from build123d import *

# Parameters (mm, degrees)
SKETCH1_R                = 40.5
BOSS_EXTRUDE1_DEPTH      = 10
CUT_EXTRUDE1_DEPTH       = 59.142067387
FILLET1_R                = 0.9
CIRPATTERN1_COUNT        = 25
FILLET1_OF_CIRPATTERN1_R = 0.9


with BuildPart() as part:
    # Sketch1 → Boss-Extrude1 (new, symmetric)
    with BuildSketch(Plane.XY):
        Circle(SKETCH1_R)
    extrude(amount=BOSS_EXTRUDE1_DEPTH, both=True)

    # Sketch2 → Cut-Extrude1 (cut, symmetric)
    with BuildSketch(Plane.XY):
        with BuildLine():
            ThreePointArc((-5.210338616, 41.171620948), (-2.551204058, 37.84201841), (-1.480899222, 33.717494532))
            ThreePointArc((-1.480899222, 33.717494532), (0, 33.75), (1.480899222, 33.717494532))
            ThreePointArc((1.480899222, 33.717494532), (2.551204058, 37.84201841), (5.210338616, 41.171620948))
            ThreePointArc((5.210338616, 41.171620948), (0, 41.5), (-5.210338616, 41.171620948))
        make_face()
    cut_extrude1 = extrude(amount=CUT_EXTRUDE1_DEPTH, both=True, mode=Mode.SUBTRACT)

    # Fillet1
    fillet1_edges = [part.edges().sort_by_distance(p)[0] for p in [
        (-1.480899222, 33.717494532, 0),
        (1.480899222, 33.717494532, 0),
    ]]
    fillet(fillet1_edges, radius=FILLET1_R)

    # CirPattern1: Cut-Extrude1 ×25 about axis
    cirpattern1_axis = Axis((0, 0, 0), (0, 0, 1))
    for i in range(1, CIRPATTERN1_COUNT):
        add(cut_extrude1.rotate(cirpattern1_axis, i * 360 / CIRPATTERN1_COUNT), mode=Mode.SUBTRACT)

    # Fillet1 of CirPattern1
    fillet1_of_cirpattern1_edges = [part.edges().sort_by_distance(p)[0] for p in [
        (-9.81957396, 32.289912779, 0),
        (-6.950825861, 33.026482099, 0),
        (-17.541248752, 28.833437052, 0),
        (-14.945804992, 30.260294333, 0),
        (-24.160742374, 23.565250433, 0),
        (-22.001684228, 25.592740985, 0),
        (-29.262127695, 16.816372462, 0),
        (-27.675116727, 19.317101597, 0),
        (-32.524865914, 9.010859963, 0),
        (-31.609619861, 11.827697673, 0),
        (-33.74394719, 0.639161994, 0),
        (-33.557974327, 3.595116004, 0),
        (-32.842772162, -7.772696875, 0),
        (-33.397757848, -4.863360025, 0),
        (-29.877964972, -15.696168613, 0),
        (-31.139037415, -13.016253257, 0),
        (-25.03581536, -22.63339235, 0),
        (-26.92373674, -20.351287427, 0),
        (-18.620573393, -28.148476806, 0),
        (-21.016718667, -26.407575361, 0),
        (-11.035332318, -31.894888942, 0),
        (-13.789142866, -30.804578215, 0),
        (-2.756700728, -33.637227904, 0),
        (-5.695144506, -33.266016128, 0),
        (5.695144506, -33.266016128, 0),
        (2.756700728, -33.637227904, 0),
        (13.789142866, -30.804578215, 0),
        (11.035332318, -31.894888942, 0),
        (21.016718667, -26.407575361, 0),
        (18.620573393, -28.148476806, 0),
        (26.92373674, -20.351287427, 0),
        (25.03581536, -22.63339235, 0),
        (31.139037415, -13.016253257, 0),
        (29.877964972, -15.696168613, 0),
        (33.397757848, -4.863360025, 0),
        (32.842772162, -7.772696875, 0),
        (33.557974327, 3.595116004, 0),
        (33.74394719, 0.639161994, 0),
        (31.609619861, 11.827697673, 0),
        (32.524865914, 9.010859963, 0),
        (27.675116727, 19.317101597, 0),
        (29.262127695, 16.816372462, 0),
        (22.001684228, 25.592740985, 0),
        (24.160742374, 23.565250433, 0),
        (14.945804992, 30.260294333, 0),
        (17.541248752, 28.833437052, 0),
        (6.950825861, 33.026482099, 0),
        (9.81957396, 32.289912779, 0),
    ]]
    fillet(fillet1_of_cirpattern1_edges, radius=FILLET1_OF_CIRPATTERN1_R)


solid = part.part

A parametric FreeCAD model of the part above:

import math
import FreeCAD as App
import Part
import Sketcher

V = App.Vector


def edges_at(feature, points):
    """Names of the edges that pass closest to the given points."""
    edges = feature.Shape.Edges
    near = lambda p: min(range(len(edges)), key=lambda i: edges[i].distToShape(Part.Vertex(*p))[0])
    return sorted({f"Edge{near(p) + 1}" for p in points})

doc = App.newDocument("Part")
params = doc.addObject("Spreadsheet::Sheet", "Params")
for row, (alias, value) in enumerate([
    ("sketch1_diameter", "81 mm"),
    ("pad1_length", "20 mm"),
    ("sketch2_radius", "41.5 mm"),
    ("sketch2_radius2", "33.75 mm"),
    ("pocket1_length", "118.284135 mm"),
    ("fillet_radius", "0.9 mm"),
    ("fillet2_radius", "0.9 mm"),
], start=1):
    params.set(f"A{row}", alias)
    params.set(f"B{row}", "=" + value)
    params.setAlias(f"B{row}", alias)

body = doc.addObject("PartDesign::Body", "Body")

# Sketch on XY plane
sketch1 = doc.addObject("Sketcher::SketchObject", "Sketch")
body.addObject(sketch1)
sketch1.AttachmentSupport = (doc.XY_Plane, [""])
sketch1.MapMode = "FlatFace"
sketch1.addGeometry(Part.Circle(V(0, 0, 0), V(0, 0, 1), 40.5), False)
sketch1.addConstraint(Sketcher.Constraint("Coincident", 0, 3, -1, 1))
sketch1.addConstraint(Sketcher.Constraint("Diameter", 0, 81.0))
sketch1.setExpression("Constraints[1]", "Params.sketch1_diameter")
pad1 = doc.addObject("PartDesign::Pad", "Pad")
body.addObject(pad1)
pad1.Profile = sketch1
pad1.setExpression("Length", "Params.pad1_length")
pad1.Midplane = True

# Sketch on XY plane
sketch2 = doc.addObject("Sketcher::SketchObject", "Sketch001")
body.addObject(sketch2)
sketch2.AttachmentSupport = (doc.XY_Plane, [""])
sketch2.MapMode = "FlatFace"
sketch2.addGeometry(Part.ArcOfCircle(Part.Circle(V(-11.691325, 33.269045, 0), V(0, 0, 1), 10.220269), math.radians(2.51486), math.radians(50.644462)), False)
sketch2.addGeometry(Part.ArcOfCircle(Part.Circle(V(0, 0, 0), V(0, 0, 1), 33.75), math.radians(87.48514), math.radians(92.51486)), False)
sketch2.addGeometry(Part.ArcOfCircle(Part.Circle(V(11.691325, 33.269045, 0), V(0, 0, 1), 10.220269), math.radians(129.355538), math.radians(177.48514)), False)
sketch2.addGeometry(Part.ArcOfCircle(Part.Circle(V(0, 0, 0), V(0, 0, 1), 41.5), math.radians(82.787462), math.radians(97.212538)), False)
sketch2.addConstraint(Sketcher.Constraint("Coincident", 0, 1, 1, 2))
sketch2.addConstraint(Sketcher.Constraint("Coincident", 1, 1, 2, 2))
sketch2.addConstraint(Sketcher.Constraint("Coincident", 2, 1, 3, 1))
sketch2.addConstraint(Sketcher.Constraint("Coincident", 3, 2, 0, 2))
sketch2.addConstraint(Sketcher.Constraint("Coincident", 1, 3, -1, 1))
sketch2.addConstraint(Sketcher.Constraint("Coincident", 3, 3, -1, 1))
sketch2.addConstraint(Sketcher.Constraint("Equal", 0, 2))
sketch2.addConstraint(Sketcher.Constraint("Symmetric", 0, 3, 2, 3, -2))
sketch2.addConstraint(Sketcher.Constraint("Radius", 3, 41.5))
sketch2.addConstraint(Sketcher.Constraint("Radius", 1, 33.75))
sketch2.addConstraint(Sketcher.Constraint("Radius", 0, 10.220269))
sketch2.addConstraint(Sketcher.Constraint("DistanceX", 0, 1, -1, 1, 1.480899))
sketch2.addConstraint(Sketcher.Constraint("DistanceX", -1, 1, 2, 1, 5.210339))
sketch2.setExpression("Constraints[8]", "Params.sketch2_radius")
sketch2.setExpression("Constraints[9]", "Params.sketch2_radius2")
pocket1 = doc.addObject("PartDesign::Pocket", "Pocket")
body.addObject(pocket1)
pocket1.Profile = sketch2
pocket1.setExpression("Length", "Params.pocket1_length")
pocket1.Midplane = True
doc.recompute()

fillet = doc.addObject("PartDesign::Fillet", "Fillet")
body.addObject(fillet)
fillet.Base = (pocket1, edges_at(pocket1, [(-1.481, 33.717, 0), (1.481, 33.717, 0)]))
fillet.setExpression("Radius", "Params.fillet_radius")
doc.recompute()

polarpattern = doc.addObject("PartDesign::PolarPattern", "PolarPattern")
body.addObject(polarpattern)
polarpattern.Originals = [pocket1]
polarpattern.Axis = (doc.Z_Axis, [""])
polarpattern.Angle = 360
polarpattern.Occurrences = 25
body.Tip = polarpattern
doc.recompute()

fillet2 = doc.addObject("PartDesign::Fillet", "Fillet001")
body.addObject(fillet2)
fillet2.Base = (polarpattern, edges_at(polarpattern, [
    (-9.82, 32.29, 0),
    (-6.951, 33.026, 0),
    (-17.541, 28.833, 0),
    (-14.946, 30.26, 0),
    (-24.161, 23.565, 0),
    (-22.002, 25.593, 0),
    (-29.262, 16.816, 0),
    (-27.675, 19.317, 0),
    (-32.525, 9.011, 0),
    (-31.61, 11.828, 0),
    (-33.744, 0.639, 0),
    (-33.558, 3.595, 0),
    (-32.843, -7.773, 0),
    (-33.398, -4.863, 0),
    (-29.878, -15.696, 0),
    (-31.139, -13.016, 0),
    (-25.036, -22.633, 0),
    (-26.924, -20.351, 0),
    (-18.621, -28.148, 0),
    (-21.017, -26.408, 0),
    (-11.035, -31.895, 0),
    (-13.789, -30.805, 0),
    (-2.757, -33.637, 0),
    (-5.695, -33.266, 0),
    (5.695, -33.266, 0),
    (2.757, -33.637, 0),
    (13.789, -30.805, 0),
    (11.035, -31.895, 0),
    (21.017, -26.408, 0),
    (18.621, -28.148, 0),
    (26.924, -20.351, 0),
    (25.036, -22.633, 0),
    (31.139, -13.016, 0),
    (29.878, -15.696, 0),
    (33.398, -4.863, 0),
    (32.843, -7.773, 0),
    (33.558, 3.595, 0),
    (33.744, 0.639, 0),
    (31.61, 11.828, 0),
    (32.525, 9.011, 0),
    (27.675, 19.317, 0),
    (29.262, 16.816, 0),
    (22.002, 25.593, 0),
    (24.161, 23.565, 0),
    (14.946, 30.26, 0),
    (17.541, 28.833, 0),
    (6.951, 33.026, 0),
    (9.82, 32.29, 0),
]))
fillet2.setExpression("Radius", "Params.fillet2_radius")

doc.recompute()
